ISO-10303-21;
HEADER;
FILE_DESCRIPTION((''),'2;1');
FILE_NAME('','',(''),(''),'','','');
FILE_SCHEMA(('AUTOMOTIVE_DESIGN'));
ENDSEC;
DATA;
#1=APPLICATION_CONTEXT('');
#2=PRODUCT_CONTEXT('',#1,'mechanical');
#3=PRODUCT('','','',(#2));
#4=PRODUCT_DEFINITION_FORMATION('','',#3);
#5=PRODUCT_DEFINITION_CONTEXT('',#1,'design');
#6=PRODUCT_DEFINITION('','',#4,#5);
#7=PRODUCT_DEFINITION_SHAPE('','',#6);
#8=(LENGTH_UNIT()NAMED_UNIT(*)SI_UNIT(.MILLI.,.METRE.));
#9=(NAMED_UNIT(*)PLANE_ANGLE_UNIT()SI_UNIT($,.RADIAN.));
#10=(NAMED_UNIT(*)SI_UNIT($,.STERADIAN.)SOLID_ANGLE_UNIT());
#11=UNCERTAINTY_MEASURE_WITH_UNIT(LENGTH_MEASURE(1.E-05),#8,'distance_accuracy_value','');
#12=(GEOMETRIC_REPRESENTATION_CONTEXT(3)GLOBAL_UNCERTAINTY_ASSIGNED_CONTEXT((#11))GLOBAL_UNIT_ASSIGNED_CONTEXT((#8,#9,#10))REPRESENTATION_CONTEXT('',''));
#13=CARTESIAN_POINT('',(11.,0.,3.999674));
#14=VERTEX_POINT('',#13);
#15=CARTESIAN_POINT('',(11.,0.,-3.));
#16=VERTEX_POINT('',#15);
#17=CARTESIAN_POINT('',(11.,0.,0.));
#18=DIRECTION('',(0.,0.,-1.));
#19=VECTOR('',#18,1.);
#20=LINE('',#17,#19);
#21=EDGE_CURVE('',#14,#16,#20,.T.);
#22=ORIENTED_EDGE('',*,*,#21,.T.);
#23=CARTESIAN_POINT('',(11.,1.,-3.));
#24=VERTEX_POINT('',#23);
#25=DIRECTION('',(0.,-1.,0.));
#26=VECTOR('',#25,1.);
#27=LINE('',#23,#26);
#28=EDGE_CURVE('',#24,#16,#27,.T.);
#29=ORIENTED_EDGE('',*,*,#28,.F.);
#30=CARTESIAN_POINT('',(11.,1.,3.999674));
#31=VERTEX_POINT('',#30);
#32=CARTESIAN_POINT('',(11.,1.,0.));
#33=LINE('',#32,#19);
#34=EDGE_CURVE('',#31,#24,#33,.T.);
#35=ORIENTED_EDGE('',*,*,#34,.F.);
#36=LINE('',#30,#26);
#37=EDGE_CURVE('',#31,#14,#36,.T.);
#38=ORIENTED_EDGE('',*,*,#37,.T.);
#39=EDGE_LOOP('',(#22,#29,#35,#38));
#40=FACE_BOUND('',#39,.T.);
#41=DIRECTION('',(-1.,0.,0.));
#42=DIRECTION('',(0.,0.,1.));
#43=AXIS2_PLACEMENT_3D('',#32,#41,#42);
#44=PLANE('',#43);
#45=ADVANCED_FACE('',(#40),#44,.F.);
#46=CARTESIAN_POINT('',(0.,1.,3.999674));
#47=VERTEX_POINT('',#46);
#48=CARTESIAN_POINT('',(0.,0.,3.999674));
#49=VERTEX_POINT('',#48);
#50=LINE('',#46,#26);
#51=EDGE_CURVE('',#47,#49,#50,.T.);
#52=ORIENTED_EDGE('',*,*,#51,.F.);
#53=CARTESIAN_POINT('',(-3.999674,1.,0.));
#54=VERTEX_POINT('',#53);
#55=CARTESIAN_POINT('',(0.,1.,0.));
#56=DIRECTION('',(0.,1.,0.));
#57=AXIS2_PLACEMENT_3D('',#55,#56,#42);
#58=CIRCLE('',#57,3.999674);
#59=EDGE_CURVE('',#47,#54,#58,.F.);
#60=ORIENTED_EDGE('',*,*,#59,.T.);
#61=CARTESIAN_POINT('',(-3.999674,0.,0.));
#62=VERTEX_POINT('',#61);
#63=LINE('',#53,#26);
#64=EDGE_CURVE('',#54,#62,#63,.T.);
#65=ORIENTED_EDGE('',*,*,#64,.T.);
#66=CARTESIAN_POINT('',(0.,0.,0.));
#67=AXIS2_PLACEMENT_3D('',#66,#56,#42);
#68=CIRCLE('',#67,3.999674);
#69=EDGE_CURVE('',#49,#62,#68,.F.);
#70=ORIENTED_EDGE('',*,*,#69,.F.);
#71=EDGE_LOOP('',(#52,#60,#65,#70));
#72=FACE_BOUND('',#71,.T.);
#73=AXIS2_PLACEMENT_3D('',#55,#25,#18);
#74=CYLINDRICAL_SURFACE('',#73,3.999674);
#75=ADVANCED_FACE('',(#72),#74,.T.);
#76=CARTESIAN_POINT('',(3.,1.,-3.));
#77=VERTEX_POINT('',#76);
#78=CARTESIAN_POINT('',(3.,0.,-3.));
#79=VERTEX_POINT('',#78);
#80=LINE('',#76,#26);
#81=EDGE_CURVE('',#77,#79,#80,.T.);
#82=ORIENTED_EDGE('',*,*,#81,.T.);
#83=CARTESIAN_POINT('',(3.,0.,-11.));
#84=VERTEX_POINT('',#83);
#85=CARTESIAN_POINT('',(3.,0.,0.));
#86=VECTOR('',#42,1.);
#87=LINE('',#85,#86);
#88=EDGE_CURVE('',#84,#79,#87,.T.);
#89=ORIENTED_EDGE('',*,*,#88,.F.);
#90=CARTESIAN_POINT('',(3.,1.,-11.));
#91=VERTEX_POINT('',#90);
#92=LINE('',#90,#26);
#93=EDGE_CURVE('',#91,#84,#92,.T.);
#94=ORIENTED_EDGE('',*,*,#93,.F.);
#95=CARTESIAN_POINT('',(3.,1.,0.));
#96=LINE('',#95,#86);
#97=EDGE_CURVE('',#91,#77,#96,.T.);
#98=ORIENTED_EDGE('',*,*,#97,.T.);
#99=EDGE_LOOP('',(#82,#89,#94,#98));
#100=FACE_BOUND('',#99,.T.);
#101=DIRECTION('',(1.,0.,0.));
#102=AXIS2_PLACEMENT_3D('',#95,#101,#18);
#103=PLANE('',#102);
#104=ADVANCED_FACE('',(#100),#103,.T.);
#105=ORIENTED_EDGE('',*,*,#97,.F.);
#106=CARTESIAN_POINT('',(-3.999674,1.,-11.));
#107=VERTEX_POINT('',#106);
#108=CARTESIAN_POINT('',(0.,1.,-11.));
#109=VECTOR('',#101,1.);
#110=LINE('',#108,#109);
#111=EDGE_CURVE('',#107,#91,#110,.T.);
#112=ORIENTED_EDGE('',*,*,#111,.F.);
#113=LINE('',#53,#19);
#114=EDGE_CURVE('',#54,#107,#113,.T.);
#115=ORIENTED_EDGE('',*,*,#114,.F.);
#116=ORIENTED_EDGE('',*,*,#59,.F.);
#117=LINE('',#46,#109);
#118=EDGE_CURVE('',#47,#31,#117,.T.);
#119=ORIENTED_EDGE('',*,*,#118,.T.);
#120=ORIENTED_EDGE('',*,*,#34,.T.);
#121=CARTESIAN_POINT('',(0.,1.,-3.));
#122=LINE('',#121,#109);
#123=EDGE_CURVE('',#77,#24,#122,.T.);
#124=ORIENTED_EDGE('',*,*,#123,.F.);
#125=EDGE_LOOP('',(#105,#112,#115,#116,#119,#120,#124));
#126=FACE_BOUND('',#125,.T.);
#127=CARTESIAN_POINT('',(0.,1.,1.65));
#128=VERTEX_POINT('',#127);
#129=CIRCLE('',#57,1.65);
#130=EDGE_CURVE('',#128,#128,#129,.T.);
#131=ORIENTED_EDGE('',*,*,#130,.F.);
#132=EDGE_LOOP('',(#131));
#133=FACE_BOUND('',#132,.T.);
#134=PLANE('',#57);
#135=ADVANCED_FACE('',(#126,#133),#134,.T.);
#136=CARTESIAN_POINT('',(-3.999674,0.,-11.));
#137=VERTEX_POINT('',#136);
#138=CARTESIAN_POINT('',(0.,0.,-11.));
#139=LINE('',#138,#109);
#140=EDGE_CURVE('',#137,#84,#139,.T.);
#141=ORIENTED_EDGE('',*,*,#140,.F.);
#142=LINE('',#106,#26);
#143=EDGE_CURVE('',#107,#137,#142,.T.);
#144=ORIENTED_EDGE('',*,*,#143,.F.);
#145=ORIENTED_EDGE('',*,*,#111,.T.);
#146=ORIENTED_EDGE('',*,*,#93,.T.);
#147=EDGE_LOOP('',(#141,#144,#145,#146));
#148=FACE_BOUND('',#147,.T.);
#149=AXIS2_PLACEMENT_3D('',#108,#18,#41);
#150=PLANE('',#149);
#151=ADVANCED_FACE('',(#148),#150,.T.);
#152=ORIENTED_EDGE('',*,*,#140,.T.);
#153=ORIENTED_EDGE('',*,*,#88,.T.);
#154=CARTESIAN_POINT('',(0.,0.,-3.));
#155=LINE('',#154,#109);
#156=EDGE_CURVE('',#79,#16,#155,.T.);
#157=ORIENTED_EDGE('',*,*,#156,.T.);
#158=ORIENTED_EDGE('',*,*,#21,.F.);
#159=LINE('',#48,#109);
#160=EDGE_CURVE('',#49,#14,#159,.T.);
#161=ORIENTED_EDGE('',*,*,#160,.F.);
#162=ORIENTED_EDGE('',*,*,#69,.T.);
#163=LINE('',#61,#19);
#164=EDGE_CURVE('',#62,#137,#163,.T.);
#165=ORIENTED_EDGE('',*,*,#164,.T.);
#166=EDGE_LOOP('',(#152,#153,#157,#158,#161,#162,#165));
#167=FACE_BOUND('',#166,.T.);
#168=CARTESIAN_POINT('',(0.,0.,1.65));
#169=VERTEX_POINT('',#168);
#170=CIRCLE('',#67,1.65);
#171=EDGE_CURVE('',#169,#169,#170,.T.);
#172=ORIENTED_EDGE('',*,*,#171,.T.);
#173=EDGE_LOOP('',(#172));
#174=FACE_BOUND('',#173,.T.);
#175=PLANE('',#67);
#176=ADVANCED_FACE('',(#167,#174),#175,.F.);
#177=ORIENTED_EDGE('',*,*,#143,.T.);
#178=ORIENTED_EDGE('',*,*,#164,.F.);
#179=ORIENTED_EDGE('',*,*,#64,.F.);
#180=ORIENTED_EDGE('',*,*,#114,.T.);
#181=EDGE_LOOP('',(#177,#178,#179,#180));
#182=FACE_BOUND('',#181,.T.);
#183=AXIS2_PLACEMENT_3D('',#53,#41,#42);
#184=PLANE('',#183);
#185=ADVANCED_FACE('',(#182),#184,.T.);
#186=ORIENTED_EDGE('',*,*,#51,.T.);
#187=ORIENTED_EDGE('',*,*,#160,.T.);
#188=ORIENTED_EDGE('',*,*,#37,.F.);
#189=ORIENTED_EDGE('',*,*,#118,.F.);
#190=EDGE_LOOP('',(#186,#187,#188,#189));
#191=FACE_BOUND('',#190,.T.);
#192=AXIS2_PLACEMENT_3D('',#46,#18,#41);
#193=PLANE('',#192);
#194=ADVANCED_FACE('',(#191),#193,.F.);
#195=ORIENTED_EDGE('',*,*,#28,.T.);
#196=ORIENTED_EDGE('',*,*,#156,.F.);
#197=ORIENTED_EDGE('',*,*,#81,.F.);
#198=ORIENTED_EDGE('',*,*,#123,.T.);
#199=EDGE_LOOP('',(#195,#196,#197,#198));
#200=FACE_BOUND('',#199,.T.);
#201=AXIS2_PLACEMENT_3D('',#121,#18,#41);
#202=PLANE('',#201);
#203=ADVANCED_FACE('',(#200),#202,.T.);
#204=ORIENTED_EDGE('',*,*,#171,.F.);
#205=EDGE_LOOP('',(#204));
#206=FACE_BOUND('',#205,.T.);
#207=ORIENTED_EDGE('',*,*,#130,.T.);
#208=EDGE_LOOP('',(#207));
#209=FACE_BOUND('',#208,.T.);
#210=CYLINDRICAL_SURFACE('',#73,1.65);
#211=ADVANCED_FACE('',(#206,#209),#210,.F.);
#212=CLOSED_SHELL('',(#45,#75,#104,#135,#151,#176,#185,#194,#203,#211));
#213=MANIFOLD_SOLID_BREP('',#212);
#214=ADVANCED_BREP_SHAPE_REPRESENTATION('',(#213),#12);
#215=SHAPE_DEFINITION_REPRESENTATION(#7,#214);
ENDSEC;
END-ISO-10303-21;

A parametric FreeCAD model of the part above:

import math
import FreeCAD as App
import Part
import Sketcher
from FreeCAD import Vector
Q = App.Units.Quantity

doc = App.newDocument("Part")
body = doc.addObject("PartDesign::Body", "Body")

sketch1 = body.newObject("Sketcher::SketchObject", "Sketch")
sketch1.AttachmentSupport = (doc.getObject("XZ_Plane"), [""])
sketch1.MapMode = "FlatFace"
sketch1.addGeometry([
    Part.LineSegment(Vector(11, 3.999674, 0), Vector(11, -3, 0)),
    Part.LineSegment(Vector(11, -3, 0), Vector(3, -3, 0)),
    Part.LineSegment(Vector(3, -3, 0), Vector(3, -11, 0)),
    Part.LineSegment(Vector(3, -11, 0), Vector(-3.999674, -11, 0)),
    Part.LineSegment(Vector(-3.999674, -11, 0), Vector(-3.999674, 0, 0)),
    Part.ArcOfCircle(Part.Circle(Vector(0, 0, 0), Vector(0, 0, 1), 3.999674), math.radians(90), math.radians(180)),
    Part.LineSegment(Vector(0, 3.999674, 0), Vector(11, 3.999674, 0)),
    Part.Circle(Vector(0, 0, 0), Vector(0, 0, 1), 1.65),
], False)
sketch1.addConstraint([
    Sketcher.Constraint("Coincident", 0, 2, 1, 1),
    Sketcher.Constraint("Coincident", 1, 2, 2, 1),
    Sketcher.Constraint("Coincident", 2, 2, 3, 1),
    Sketcher.Constraint("Coincident", 3, 2, 4, 1),
    Sketcher.Constraint("Tangent", 4, 2, 5, 2),
    Sketcher.Constraint("Tangent", 5, 1, 6, 1),
    Sketcher.Constraint("Coincident", 6, 2, 0, 1),
    Sketcher.Constraint("Vertical", 0),
    Sketcher.Constraint("Horizontal", 1),
    Sketcher.Constraint("Vertical", 2),
    Sketcher.Constraint("Horizontal", 3),
    Sketcher.Constraint("Vertical", 4),
    Sketcher.Constraint("Horizontal", 6),
    Sketcher.Constraint("Coincident", 5, 3, -1, 1),
    Sketcher.Constraint("Coincident", 7, 3, -1, 1),
    Sketcher.Constraint("Equal", 3, 0),
    Sketcher.Constraint("Equal", 1, 2),
    Sketcher.Constraint("Diameter", 7, Q("3.3 mm")),
    Sketcher.Constraint("DistanceX", 1, 2, 1, 1, Q("8 mm")),
    Sketcher.Constraint("DistanceX", 6, 1, 6, 2, Q("11 mm")),
    Sketcher.Constraint("Radius", 5, Q("3.999674 mm")),
])
pad1 = body.newObject("PartDesign::Pad", "Pad")
pad1.Profile = sketch1
pad1.Length = 1
pad1.Reversed = True

doc.recompute()
